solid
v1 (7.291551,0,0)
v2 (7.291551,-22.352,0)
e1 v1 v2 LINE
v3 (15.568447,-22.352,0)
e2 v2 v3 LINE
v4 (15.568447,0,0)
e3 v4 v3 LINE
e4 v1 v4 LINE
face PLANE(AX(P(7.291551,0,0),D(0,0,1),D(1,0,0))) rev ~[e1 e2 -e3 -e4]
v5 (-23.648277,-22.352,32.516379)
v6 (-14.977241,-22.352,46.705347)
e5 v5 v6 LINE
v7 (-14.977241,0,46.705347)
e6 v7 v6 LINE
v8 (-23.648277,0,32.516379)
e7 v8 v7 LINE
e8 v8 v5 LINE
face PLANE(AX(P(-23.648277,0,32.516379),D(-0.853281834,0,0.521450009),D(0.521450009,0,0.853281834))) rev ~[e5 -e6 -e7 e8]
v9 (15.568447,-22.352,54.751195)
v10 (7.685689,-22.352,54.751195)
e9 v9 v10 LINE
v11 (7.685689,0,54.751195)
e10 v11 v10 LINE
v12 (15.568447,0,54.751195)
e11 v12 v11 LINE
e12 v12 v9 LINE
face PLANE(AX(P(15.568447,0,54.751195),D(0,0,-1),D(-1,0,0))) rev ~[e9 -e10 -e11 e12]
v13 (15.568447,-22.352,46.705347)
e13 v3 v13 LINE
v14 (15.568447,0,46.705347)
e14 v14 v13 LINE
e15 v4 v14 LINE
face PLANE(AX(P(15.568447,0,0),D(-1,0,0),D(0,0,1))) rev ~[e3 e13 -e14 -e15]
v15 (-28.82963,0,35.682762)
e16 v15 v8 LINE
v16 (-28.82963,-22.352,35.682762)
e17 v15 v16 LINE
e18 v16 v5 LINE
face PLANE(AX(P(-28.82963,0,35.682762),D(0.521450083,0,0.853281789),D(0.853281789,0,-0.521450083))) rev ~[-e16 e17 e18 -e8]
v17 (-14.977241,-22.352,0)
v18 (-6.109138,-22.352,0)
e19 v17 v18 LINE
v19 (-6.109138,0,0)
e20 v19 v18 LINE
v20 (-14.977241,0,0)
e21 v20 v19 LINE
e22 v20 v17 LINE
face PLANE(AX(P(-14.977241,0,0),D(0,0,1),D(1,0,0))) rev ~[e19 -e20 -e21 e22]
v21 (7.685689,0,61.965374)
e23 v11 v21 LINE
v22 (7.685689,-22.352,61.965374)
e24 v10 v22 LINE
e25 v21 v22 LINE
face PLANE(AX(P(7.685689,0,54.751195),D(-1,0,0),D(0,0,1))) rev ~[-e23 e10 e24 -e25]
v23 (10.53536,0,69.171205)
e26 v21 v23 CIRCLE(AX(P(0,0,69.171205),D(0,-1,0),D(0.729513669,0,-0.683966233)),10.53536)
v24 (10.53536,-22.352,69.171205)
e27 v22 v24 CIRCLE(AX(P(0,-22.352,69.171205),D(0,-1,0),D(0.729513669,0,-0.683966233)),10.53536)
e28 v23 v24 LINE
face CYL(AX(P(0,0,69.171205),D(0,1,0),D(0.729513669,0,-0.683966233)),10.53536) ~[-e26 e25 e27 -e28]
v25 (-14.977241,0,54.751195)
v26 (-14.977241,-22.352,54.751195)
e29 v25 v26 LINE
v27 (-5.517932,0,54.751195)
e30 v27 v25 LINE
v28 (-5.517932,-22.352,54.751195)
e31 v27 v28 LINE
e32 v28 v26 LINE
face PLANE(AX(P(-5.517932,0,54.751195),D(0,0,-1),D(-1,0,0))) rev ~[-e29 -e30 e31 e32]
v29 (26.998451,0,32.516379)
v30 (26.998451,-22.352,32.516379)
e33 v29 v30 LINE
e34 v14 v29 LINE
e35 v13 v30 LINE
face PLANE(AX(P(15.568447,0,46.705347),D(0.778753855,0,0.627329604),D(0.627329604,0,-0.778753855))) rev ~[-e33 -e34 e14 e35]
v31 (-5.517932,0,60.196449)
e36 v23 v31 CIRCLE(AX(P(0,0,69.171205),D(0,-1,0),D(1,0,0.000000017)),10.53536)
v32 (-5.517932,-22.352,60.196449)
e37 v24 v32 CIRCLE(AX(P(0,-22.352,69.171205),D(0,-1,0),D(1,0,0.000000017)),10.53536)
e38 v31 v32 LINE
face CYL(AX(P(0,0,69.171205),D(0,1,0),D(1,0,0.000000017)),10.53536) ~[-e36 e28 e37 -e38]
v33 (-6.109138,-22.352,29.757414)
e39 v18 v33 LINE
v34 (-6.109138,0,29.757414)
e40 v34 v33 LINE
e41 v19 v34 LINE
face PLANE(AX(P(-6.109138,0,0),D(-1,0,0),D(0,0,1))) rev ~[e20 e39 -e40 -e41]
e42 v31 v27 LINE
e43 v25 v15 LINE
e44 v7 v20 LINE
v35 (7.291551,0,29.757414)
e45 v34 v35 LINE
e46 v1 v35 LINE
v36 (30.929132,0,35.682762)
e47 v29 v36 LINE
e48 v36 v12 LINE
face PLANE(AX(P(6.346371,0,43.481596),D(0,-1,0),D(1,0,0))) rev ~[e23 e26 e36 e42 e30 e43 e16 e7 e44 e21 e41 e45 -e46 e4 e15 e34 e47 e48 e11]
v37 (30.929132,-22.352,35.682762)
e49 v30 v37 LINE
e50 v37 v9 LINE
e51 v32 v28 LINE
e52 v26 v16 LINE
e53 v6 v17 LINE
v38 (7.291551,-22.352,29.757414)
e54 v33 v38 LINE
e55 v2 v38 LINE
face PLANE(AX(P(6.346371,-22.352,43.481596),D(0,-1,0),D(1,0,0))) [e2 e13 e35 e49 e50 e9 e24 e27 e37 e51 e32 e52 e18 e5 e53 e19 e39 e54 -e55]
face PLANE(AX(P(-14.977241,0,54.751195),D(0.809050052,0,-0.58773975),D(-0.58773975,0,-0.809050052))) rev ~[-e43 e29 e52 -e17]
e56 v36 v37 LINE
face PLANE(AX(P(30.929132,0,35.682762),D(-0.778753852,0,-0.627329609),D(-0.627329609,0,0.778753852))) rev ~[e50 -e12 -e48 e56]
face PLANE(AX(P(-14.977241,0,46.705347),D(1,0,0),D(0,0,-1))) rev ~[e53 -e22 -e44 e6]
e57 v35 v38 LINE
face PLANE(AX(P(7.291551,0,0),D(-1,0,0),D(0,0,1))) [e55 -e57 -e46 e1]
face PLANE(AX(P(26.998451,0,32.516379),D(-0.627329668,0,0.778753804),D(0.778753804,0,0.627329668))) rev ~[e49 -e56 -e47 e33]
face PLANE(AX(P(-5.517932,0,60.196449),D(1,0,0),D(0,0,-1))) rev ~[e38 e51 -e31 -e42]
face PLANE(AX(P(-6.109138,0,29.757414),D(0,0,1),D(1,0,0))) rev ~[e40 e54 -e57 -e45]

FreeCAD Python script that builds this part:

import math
import FreeCAD as App
import Part
import Sketcher

V = App.Vector
Q = App.Units.Quantity

doc = App.newDocument("Part")
params = doc.addObject("Spreadsheet::Sheet", "Params")
for row, (alias, value) in enumerate([
    ("pad1_length", "0.88 in"),
], start=1):
    params.set(f"A{row}", alias)
    params.set(f"B{row}", "=" + value)
    params.setAlias(f"B{row}", alias)

body = doc.addObject("PartDesign::Body", "Body")

# Sketch on XZ plane
sketch1 = body.newObject("Sketcher::SketchObject", "Sketch")
sketch1.AttachmentSupport = (doc.getObject("XZ_Plane"), [""])
sketch1.MapMode = "FlatFace"
sketch1.addGeometry(Part.LineSegment(V(-6, 30, 0), V(7, 30, 0)), False)
sketch1.addGeometry(Part.LineSegment(V(7, 30, 0), V(7, 0, 0)), False)
sketch1.addGeometry(Part.LineSegment(V(7, 0, 0), V(16, 0, 0)), False)
sketch1.addGeometry(Part.LineSegment(V(16, 0, 0), V(16, 47, 0)), False)
sketch1.addGeometry(Part.LineSegment(V(16, 47, 0), V(27, 33, 0)), False)
sketch1.addGeometry(Part.LineSegment(V(27, 33, 0), V(31, 36, 0)), False)
sketch1.addGeometry(Part.LineSegment(V(31, 36, 0), V(16, 55, 0)), False)
sketch1.addGeometry(Part.LineSegment(V(16, 55, 0), V(8, 55, 0)), False)
sketch1.addGeometry(Part.LineSegment(V(8, 55, 0), V(8, 62, 0)), False)
sketch1.addGeometry(Part.ArcOfCircle(Part.Circle(V(0, 69, 0), V(0, 0, 1), 11), math.radians(-43), math.radians(0)), False)
sketch1.addGeometry(Part.ArcOfCircle(Part.Circle(V(0, 69, 0), V(0, 0, 1), 11), math.radians(0), math.radians(238)), False)
sketch1.addGeometry(Part.LineSegment(V(-6, 60, 0), V(-6, 55, 0)), False)
sketch1.addGeometry(Part.LineSegment(V(-6, 55, 0), V(-15, 55, 0)), False)
sketch1.addGeometry(Part.LineSegment(V(-15, 55, 0), V(-29, 36, 0)), False)
sketch1.addGeometry(Part.LineSegment(V(-29, 36, 0), V(-24, 33, 0)), False)
sketch1.addGeometry(Part.LineSegment(V(-24, 33, 0), V(-15, 47, 0)), False)
sketch1.addGeometry(Part.LineSegment(V(-15, 47, 0), V(-15, 0, 0)), False)
sketch1.addGeometry(Part.LineSegment(V(-15, 0, 0), V(-6, 0, 0)), False)
sketch1.addGeometry(Part.LineSegment(V(-6, 0, 0), V(-6, 30, 0)), False)
sketch1.addConstraint(Sketcher.Constraint("Coincident", 0, 2, 1, 1))
sketch1.addConstraint(Sketcher.Constraint("Coincident", 1, 2, 2, 1))
sketch1.addConstraint(Sketcher.Constraint("Coincident", 2, 2, 3, 1))
sketch1.addConstraint(Sketcher.Constraint("Coincident", 3, 2, 4, 1))
sketch1.addConstraint(Sketcher.Constraint("Coincident", 4, 2, 5, 1))
sketch1.addConstraint(Sketcher.Constraint("Coincident", 5, 2, 6, 1))
sketch1.addConstraint(Sketcher.Constraint("Coincident", 6, 2, 7, 1))
sketch1.addConstraint(Sketcher.Constraint("Coincident", 7, 2, 8, 1))
sketch1.addConstraint(Sketcher.Constraint("Coincident", 8, 2, 9, 1))
sketch1.addConstraint(Sketcher.Constraint("Tangent", 9, 2, 10, 1))
sketch1.addConstraint(Sketcher.Constraint("Coincident", 10, 2, 11, 1))
sketch1.addConstraint(Sketcher.Constraint("Coincident", 11, 2, 12, 1))
sketch1.addConstraint(Sketcher.Constraint("Coincident", 12, 2, 13, 1))
sketch1.addConstraint(Sketcher.Constraint("Coincident", 13, 2, 14, 1))
sketch1.addConstraint(Sketcher.Constraint("Coincident", 14, 2, 15, 1))
sketch1.addConstraint(Sketcher.Constraint("Coincident", 15, 2, 16, 1))
sketch1.addConstraint(Sketcher.Constraint("Coincident", 16, 2, 17, 1))
sketch1.addConstraint(Sketcher.Constraint("Coincident", 17, 2, 18, 1))
sketch1.addConstraint(Sketcher.Constraint("Coincident", 18, 2, 0, 1))
sketch1.addConstraint(Sketcher.Constraint("Horizontal", 0))
sketch1.addConstraint(Sketcher.Constraint("Vertical", 1))
sketch1.addConstraint(Sketcher.Constraint("Horizontal", 2))
sketch1.addConstraint(Sketcher.Constraint("Vertical", 3))
sketch1.addConstraint(Sketcher.Constraint("Horizontal", 7))
sketch1.addConstraint(Sketcher.Constraint("Vertical", 8))
sketch1.addConstraint(Sketcher.Constraint("Vertical", 11))
sketch1.addConstraint(Sketcher.Constraint("Horizontal", 12))
sketch1.addConstraint(Sketcher.Constraint("Vertical", 16))
sketch1.addConstraint(Sketcher.Constraint("Horizontal", 17))
sketch1.addConstraint(Sketcher.Constraint("Vertical", 18))
sketch1.addConstraint(Sketcher.Constraint("Equal", 9, 10))
sketch1.addConstraint(Sketcher.Constraint("PointOnObject", 9, 3, -2))
sketch1.addConstraint(Sketcher.Constraint("PointOnObject", 1, 2, -1))
sketch1.addConstraint(Sketcher.Constraint("PointOnObject", 16, 2, -1))
sketch1.addConstraint(Sketcher.Constraint("Perpendicular", 4, 5))
sketch1.addConstraint(Sketcher.Constraint("Perpendicular", 5, 6))
sketch1.addConstraint(Sketcher.Constraint("Perpendicular", 14, 15))
sketch1.addConstraint(Sketcher.Constraint("Horizontal", 10, 3, 9, 2))
sketch1.addConstraint(Sketcher.Constraint("Horizontal", 7, 2, 11, 2))
sketch1.addConstraint(Sketcher.Constraint("Horizontal", 5, 2, 13, 2))
sketch1.addConstraint(Sketcher.Constraint("Horizontal", 4, 2, 14, 2))
sketch1.addConstraint(Sketcher.Constraint("Horizontal", 3, 2, 15, 2))
sketch1.addConstraint(Sketcher.Constraint("Vertical", 3, 2, 6, 2))
sketch1.addConstraint(Sketcher.Constraint("Vertical", 12, 2, 15, 2))
sketch1.addConstraint(Sketcher.Constraint("DistanceX", 3, 2, 4, 2, Q("0.4500002 in")))
sketch1.addConstraint(Sketcher.Constraint("Radius", 9, Q("10.53536 mm")))
sketch1.addConstraint(Sketcher.Constraint("Distance", 5, Q("5.047399 mm")))
sketch1.addConstraint(Sketcher.Constraint("Distance", 15, Q("16.6287 mm")))
sketch1.addConstraint(Sketcher.Constraint("DistanceX", 0, 1, 0, 2, Q("13.400689 mm")))
sketch1.addConstraint(Sketcher.Constraint("DistanceX", 7, 2, 7, 1, Q("7.882758 mm")))
sketch1.addConstraint(Sketcher.Constraint("DistanceX", 12, 2, 12, 1, Q("9.459309 mm")))
sketch1.addConstraint(Sketcher.Constraint("DistanceY", 8, 1, 8, 2, Q("7.214179 mm")))
sketch1.addConstraint(Sketcher.Constraint("DistanceX", 0, 2, 4, 2, Q("19.7069 mm")))
sketch1.addConstraint(Sketcher.Constraint("DistanceX", 13, 2, 11, 2, Q("23.311698 mm")))
sketch1.addConstraint(Sketcher.Constraint("DistanceX", 17, 1, 17, 2, Q("8.868103 mm")))
sketch1.addConstraint(Sketcher.Constraint("DistanceY", 1, 2, 1, 1, Q("29.757414 mm")))
sketch1.addConstraint(Sketcher.Constraint("DistanceY", 3, 1, 3, 2, Q("46.705347 mm")))
sketch1.addConstraint(Sketcher.Constraint("DistanceY", 11, 2, 11, 1, Q("5.445254 mm")))
pad1 = body.newObject("PartDesign::Pad", "Pad")
pad1.Profile = sketch1
pad1.setExpression("Length", "Params.pad1_length")

doc.recompute()
